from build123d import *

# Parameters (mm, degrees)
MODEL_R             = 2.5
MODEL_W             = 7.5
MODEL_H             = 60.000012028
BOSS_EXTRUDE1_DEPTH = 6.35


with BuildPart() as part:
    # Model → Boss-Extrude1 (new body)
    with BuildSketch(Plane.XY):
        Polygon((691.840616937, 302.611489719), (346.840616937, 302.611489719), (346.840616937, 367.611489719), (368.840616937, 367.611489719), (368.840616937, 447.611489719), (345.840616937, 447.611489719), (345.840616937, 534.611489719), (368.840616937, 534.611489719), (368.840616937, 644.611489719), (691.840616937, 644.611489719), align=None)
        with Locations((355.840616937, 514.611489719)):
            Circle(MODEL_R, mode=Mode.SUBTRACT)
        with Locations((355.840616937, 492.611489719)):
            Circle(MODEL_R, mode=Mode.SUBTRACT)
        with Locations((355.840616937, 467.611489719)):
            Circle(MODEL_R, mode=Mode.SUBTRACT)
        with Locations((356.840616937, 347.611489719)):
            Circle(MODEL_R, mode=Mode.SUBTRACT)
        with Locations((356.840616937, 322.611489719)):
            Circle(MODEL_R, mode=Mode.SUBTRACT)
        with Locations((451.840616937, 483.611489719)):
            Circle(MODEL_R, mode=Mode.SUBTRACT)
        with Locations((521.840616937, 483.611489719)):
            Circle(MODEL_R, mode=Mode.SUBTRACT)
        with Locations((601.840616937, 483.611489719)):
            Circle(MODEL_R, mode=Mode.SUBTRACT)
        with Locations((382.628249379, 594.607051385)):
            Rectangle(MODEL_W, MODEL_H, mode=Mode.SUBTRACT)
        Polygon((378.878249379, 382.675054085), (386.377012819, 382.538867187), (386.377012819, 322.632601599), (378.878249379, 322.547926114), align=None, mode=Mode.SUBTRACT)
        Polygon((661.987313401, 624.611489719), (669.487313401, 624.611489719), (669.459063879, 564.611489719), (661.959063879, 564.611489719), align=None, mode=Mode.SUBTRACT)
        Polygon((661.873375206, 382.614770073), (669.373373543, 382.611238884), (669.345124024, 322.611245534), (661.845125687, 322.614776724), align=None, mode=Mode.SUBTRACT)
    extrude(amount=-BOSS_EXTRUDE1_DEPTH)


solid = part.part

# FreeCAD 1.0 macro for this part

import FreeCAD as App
import Part
import Sketcher

doc = App.newDocument("Part")
body = doc.addObject("PartDesign::Body", "Body")

sketch1 = doc.addObject("Sketcher::SketchObject", "Sketch")
body.addObject(sketch1)
sketch1.AttachmentSupport = (doc.XY_Plane, [""])
sketch1.MapMode = "FlatFace"
sketch1.addGeometry([
    Part.LineSegment(App.Vector(346.840617, 302.61149, 0), App.Vector(691.840617, 302.61149, 0)),
    Part.LineSegment(App.Vector(691.840617, 302.61149, 0), App.Vector(691.840617, 644.61149, 0)),
    Part.LineSegment(App.Vector(691.840617, 644.61149, 0), App.Vector(368.840617, 644.61149, 0)),
    Part.LineSegment(App.Vector(368.840617, 644.61149, 0), App.Vector(368.840617, 534.61149, 0)),
    Part.LineSegment(App.Vector(368.840617, 534.61149, 0), App.Vector(345.840617, 534.61149, 0)),
    Part.LineSegment(App.Vector(345.840617, 534.61149, 0), App.Vector(345.840617, 447.61149, 0)),
    Part.LineSegment(App.Vector(345.840617, 447.61149, 0), App.Vector(368.840617, 447.61149, 0)),
    Part.LineSegment(App.Vector(368.840617, 447.61149, 0), App.Vector(368.840617, 367.61149, 0)),
    Part.LineSegment(App.Vector(368.840617, 367.61149, 0), App.Vector(346.840617, 367.61149, 0)),
    Part.LineSegment(App.Vector(346.840617, 367.61149, 0), App.Vector(346.840617, 302.61149, 0)),
    Part.LineSegment(App.Vector(661.873375, 382.61477, 0), App.Vector(669.373374, 382.611239, 0)),
    Part.LineSegment(App.Vector(669.373374, 382.611239, 0), App.Vector(669.345124, 322.611246, 0)),
    Part.LineSegment(App.Vector(669.345124, 322.611246, 0), App.Vector(661.845126, 322.614777, 0)),
    Part.LineSegment(App.Vector(661.845126, 322.614777, 0), App.Vector(661.873375, 382.61477, 0)),
    Part.Circle(App.Vector(356.840617, 322.61149, 0), App.Vector(0, 0, 1), 2.5),
    Part.LineSegment(App.Vector(378.878249, 382.675054, 0), App.Vector(386.377013, 382.538867, 0)),
    Part.LineSegment(App.Vector(386.377013, 382.538867, 0), App.Vector(386.377013, 322.632602, 0)),
    Part.LineSegment(App.Vector(386.377013, 322.632602, 0), App.Vector(378.878249, 322.547926, 0)),
    Part.LineSegment(App.Vector(378.878249, 322.547926, 0), App.Vector(378.878249, 382.675054, 0)),
    Part.Circle(App.Vector(356.840617, 347.61149, 0), App.Vector(0, 0, 1), 2.5),
    Part.Circle(App.Vector(355.840617, 467.61149, 0), App.Vector(0, 0, 1), 2.5),
    Part.Circle(App.Vector(601.840617, 483.61149, 0), App.Vector(0, 0, 1), 2.5),
    Part.Circle(App.Vector(521.840617, 483.61149, 0), App.Vector(0, 0, 1), 2.5),
    Part.LineSegment(App.Vector(661.987313, 624.61149, 0), App.Vector(669.487313, 624.61149, 0)),
    Part.LineSegment(App.Vector(669.487313, 624.61149, 0), App.Vector(669.459064, 564.61149, 0)),
    Part.LineSegment(App.Vector(669.459064, 564.61149, 0), App.Vector(661.959064, 564.61149, 0)),
    Part.LineSegment(App.Vector(661.959064, 564.61149, 0), App.Vector(661.987313, 624.61149, 0)),
    Part.Circle(App.Vector(451.840617, 483.61149, 0), App.Vector(0, 0, 1), 2.5),
    Part.Circle(App.Vector(355.840617, 492.61149, 0), App.Vector(0, 0, 1), 2.5),
    Part.Circle(App.Vector(355.840617, 514.61149, 0), App.Vector(0, 0, 1), 2.5),
    Part.LineSegment(App.Vector(378.878249, 564.607045, 0), App.Vector(378.878249, 624.607057, 0)),
    Part.LineSegment(App.Vector(378.878249, 624.607057, 0), App.Vector(386.378249, 624.607057, 0)),
    Part.LineSegment(App.Vector(386.378249, 624.607057, 0), App.Vector(386.378249, 564.607045, 0)),
    Part.LineSegment(App.Vector(386.378249, 564.607045, 0), App.Vector(378.878249, 564.607045, 0)),
], False)
sketch1.addConstraint([
    Sketcher.Constraint("Coincident", 0, 2, 1, 1),
    Sketcher.Constraint("Coincident", 1, 2, 2, 1),
    Sketcher.Constraint("Coincident", 2, 2, 3, 1),
    Sketcher.Constraint("Coincident", 3, 2, 4, 1),
    Sketcher.Constraint("Coincident", 4, 2, 5, 1),
    Sketcher.Constraint("Coincident", 5, 2, 6, 1),
    Sketcher.Constraint("Coincident", 6, 2, 7, 1),
    Sketcher.Constraint("Coincident", 7, 2, 8, 1),
    Sketcher.Constraint("Coincident", 8, 2, 9, 1),
    Sketcher.Constraint("Coincident", 9, 2, 0, 1),
    Sketcher.Constraint("Coincident", 10, 2, 11, 1),
    Sketcher.Constraint("Coincident", 11, 2, 12, 1),
    Sketcher.Constraint("Coincident", 12, 2, 13, 1),
    Sketcher.Constraint("Coincident", 13, 2, 10, 1),
    Sketcher.Constraint("Coincident", 15, 2, 16, 1),
    Sketcher.Constraint("Coincident", 16, 2, 17, 1),
    Sketcher.Constraint("Coincident", 17, 2, 18, 1),
    Sketcher.Constraint("Coincident", 18, 2, 15, 1),
    Sketcher.Constraint("Coincident", 23, 2, 24, 1),
    Sketcher.Constraint("Coincident", 24, 2, 25, 1),
    Sketcher.Constraint("Coincident", 25, 2, 26, 1),
    Sketcher.Constraint("Coincident", 26, 2, 23, 1),
    Sketcher.Constraint("Coincident", 30, 2, 31, 1),
    Sketcher.Constraint("Coincident", 31, 2, 32, 1),
    Sketcher.Constraint("Coincident", 32, 2, 33, 1),
    Sketcher.Constraint("Coincident", 33, 2, 30, 1),
    Sketcher.Constraint("Horizontal", 0),
    Sketcher.Constraint("Vertical", 1),
    Sketcher.Constraint("Horizontal", 2),
    Sketcher.Constraint("Vertical", 3),
    Sketcher.Constraint("Horizontal", 4),
    Sketcher.Constraint("Vertical", 5),
    Sketcher.Constraint("Horizontal", 6),
    Sketcher.Constraint("Vertical", 7),
    Sketcher.Constraint("Horizontal", 8),
    Sketcher.Constraint("Vertical", 9),
    Sketcher.Constraint("Vertical", 16),
    Sketcher.Constraint("Vertical", 18),
    Sketcher.Constraint("Horizontal", 23),
    Sketcher.Constraint("Horizontal", 25),
    Sketcher.Constraint("Vertical", 30),
    Sketcher.Constraint("Horizontal", 31),
    Sketcher.Constraint("Vertical", 32),
    Sketcher.Constraint("Horizontal", 33),
    Sketcher.Constraint("Equal", 14, 19),
    Sketcher.Constraint("Equal", 19, 20),
    Sketcher.Constraint("Equal", 20, 21),
    Sketcher.Constraint("Equal", 21, 22),
    Sketcher.Constraint("Equal", 22, 27),
    Sketcher.Constraint("Equal", 27, 28),
    Sketcher.Constraint("Equal", 28, 29),
    Sketcher.Constraint("Perpendicular", 10, 11),
    Sketcher.Constraint("Perpendicular", 11, 12),
    Sketcher.Constraint("Perpendicular", 12, 13),
    Sketcher.Constraint("Parallel", 13, 24),
    Sketcher.Constraint("Parallel", 24, 26),
    Sketcher.Constraint("Horizontal", 21, 3, 22, 3),
    Sketcher.Constraint("Horizontal", 22, 3, 27, 3),
    Sketcher.Constraint("Vertical", 14, 3, 19, 3),
    Sketcher.Constraint("Vertical", 20, 3, 28, 3),
    Sketcher.Constraint("Vertical", 28, 3, 29, 3),
    Sketcher.Constraint("Vertical", 3, 2, 6, 2),
    Sketcher.Constraint("Vertical", 18, 2, 30, 2),
    Sketcher.Constraint("Equal", 25, 31),
    Sketcher.Constraint("Equal", 12, 15),
    Sketcher.Constraint("Diameter", 14, 5.0),
    Sketcher.Constraint("DistanceX", 0, 1, 0, 2, 345.0),
    Sketcher.Constraint("DistanceX", 2, 2, 2, 1, 323.0),
    Sketcher.Constraint("DistanceX", 4, 2, 4, 1, 23.0),
    Sketcher.Constraint("DistanceY", 1, 1, 1, 2, 342.0),
    Sketcher.Constraint("DistanceY", 3, 2, 3, 1, 110.0),
    Sketcher.Constraint("DistanceY", 5, 2, 5, 1, 87.0),
    Sketcher.Constraint("DistanceY", 7, 2, 7, 1, 80.0),
    Sketcher.Constraint("Distance", 11, 60.0),
    Sketcher.Constraint("DistanceX", 23, 1, 23, 2, 7.5),
    Sketcher.Constraint("DistanceY", 14, 3, 19, 3, 25.0),
    Sketcher.Constraint("DistanceX", 20, 3, 19, 3, 1.0),
    Sketcher.Constraint("DistanceY", 19, 3, 20, 3, 120.0),
    Sketcher.Constraint("DistanceX", 20, 3, 21, 3, 246.0),
    Sketcher.Constraint("DistanceY", 20, 3, 21, 3, 16.0),
    Sketcher.Constraint("DistanceX", 22, 3, 21, 3, 80.0),
    Sketcher.Constraint("DistanceX", 27, 3, 22, 3, 70.0),
    Sketcher.Constraint("DistanceY", 20, 3, 28, 3, 25.0),
    Sketcher.Constraint("DistanceY", 28, 3, 29, 3, 22.0),
    Sketcher.Constraint("DistanceX", 21, 3, 0, 2, 90.0),
    Sketcher.Constraint("DistanceY", 0, 2, 21, 3, 181.0),
    Sketcher.Constraint("DistanceY", 23, 2, 1, 2, 20.0),
    Sketcher.Constraint("DistanceY", 24, 2, 23, 2, 60.0),
    Sketcher.Constraint("Distance", 10, 7.499999),
    Sketcher.Constraint("DistanceY", -1, 1, 16, 2, 322.632602),
    Sketcher.Constraint("Distance", 17, 7.499241),
    Sketcher.Constraint("DistanceY", 16, 2, 16, 1, 59.906266),
    Sketcher.Constraint("DistanceY", 18, 1, 18, 2, 60.127128),
    Sketcher.Constraint("DistanceY", 30, 1, 30, 2, 60.000012),
    Sketcher.Constraint("DistanceY", -1, 1, 14, 3, 322.61149),
    Sketcher.Constraint("DistanceY", -1, 1, 10, 2, 382.611239),
    Sketcher.Constraint("DistanceY", -1, 1, 13, 2, 382.61477),
    Sketcher.Constraint("DistanceX", -1, 1, 17, 2, 378.878249),
    Sketcher.Constraint("DistanceX", 12, 2, 0, 2, 29.995491),
    Sketcher.Constraint("DistanceX", 10, 2, 23, 2, 0.11394),
    Sketcher.Constraint("DistanceX", -1, 1, 14, 3, 356.840617),
    Sketcher.Constraint("DistanceY", -1, 1, 30, 2, 624.607057),
])
pad1 = doc.addObject("PartDesign::Pad", "Pad")
body.addObject(pad1)
pad1.Profile = sketch1
pad1.Length = 6.35
pad1.Reversed = True

doc.recompute()
